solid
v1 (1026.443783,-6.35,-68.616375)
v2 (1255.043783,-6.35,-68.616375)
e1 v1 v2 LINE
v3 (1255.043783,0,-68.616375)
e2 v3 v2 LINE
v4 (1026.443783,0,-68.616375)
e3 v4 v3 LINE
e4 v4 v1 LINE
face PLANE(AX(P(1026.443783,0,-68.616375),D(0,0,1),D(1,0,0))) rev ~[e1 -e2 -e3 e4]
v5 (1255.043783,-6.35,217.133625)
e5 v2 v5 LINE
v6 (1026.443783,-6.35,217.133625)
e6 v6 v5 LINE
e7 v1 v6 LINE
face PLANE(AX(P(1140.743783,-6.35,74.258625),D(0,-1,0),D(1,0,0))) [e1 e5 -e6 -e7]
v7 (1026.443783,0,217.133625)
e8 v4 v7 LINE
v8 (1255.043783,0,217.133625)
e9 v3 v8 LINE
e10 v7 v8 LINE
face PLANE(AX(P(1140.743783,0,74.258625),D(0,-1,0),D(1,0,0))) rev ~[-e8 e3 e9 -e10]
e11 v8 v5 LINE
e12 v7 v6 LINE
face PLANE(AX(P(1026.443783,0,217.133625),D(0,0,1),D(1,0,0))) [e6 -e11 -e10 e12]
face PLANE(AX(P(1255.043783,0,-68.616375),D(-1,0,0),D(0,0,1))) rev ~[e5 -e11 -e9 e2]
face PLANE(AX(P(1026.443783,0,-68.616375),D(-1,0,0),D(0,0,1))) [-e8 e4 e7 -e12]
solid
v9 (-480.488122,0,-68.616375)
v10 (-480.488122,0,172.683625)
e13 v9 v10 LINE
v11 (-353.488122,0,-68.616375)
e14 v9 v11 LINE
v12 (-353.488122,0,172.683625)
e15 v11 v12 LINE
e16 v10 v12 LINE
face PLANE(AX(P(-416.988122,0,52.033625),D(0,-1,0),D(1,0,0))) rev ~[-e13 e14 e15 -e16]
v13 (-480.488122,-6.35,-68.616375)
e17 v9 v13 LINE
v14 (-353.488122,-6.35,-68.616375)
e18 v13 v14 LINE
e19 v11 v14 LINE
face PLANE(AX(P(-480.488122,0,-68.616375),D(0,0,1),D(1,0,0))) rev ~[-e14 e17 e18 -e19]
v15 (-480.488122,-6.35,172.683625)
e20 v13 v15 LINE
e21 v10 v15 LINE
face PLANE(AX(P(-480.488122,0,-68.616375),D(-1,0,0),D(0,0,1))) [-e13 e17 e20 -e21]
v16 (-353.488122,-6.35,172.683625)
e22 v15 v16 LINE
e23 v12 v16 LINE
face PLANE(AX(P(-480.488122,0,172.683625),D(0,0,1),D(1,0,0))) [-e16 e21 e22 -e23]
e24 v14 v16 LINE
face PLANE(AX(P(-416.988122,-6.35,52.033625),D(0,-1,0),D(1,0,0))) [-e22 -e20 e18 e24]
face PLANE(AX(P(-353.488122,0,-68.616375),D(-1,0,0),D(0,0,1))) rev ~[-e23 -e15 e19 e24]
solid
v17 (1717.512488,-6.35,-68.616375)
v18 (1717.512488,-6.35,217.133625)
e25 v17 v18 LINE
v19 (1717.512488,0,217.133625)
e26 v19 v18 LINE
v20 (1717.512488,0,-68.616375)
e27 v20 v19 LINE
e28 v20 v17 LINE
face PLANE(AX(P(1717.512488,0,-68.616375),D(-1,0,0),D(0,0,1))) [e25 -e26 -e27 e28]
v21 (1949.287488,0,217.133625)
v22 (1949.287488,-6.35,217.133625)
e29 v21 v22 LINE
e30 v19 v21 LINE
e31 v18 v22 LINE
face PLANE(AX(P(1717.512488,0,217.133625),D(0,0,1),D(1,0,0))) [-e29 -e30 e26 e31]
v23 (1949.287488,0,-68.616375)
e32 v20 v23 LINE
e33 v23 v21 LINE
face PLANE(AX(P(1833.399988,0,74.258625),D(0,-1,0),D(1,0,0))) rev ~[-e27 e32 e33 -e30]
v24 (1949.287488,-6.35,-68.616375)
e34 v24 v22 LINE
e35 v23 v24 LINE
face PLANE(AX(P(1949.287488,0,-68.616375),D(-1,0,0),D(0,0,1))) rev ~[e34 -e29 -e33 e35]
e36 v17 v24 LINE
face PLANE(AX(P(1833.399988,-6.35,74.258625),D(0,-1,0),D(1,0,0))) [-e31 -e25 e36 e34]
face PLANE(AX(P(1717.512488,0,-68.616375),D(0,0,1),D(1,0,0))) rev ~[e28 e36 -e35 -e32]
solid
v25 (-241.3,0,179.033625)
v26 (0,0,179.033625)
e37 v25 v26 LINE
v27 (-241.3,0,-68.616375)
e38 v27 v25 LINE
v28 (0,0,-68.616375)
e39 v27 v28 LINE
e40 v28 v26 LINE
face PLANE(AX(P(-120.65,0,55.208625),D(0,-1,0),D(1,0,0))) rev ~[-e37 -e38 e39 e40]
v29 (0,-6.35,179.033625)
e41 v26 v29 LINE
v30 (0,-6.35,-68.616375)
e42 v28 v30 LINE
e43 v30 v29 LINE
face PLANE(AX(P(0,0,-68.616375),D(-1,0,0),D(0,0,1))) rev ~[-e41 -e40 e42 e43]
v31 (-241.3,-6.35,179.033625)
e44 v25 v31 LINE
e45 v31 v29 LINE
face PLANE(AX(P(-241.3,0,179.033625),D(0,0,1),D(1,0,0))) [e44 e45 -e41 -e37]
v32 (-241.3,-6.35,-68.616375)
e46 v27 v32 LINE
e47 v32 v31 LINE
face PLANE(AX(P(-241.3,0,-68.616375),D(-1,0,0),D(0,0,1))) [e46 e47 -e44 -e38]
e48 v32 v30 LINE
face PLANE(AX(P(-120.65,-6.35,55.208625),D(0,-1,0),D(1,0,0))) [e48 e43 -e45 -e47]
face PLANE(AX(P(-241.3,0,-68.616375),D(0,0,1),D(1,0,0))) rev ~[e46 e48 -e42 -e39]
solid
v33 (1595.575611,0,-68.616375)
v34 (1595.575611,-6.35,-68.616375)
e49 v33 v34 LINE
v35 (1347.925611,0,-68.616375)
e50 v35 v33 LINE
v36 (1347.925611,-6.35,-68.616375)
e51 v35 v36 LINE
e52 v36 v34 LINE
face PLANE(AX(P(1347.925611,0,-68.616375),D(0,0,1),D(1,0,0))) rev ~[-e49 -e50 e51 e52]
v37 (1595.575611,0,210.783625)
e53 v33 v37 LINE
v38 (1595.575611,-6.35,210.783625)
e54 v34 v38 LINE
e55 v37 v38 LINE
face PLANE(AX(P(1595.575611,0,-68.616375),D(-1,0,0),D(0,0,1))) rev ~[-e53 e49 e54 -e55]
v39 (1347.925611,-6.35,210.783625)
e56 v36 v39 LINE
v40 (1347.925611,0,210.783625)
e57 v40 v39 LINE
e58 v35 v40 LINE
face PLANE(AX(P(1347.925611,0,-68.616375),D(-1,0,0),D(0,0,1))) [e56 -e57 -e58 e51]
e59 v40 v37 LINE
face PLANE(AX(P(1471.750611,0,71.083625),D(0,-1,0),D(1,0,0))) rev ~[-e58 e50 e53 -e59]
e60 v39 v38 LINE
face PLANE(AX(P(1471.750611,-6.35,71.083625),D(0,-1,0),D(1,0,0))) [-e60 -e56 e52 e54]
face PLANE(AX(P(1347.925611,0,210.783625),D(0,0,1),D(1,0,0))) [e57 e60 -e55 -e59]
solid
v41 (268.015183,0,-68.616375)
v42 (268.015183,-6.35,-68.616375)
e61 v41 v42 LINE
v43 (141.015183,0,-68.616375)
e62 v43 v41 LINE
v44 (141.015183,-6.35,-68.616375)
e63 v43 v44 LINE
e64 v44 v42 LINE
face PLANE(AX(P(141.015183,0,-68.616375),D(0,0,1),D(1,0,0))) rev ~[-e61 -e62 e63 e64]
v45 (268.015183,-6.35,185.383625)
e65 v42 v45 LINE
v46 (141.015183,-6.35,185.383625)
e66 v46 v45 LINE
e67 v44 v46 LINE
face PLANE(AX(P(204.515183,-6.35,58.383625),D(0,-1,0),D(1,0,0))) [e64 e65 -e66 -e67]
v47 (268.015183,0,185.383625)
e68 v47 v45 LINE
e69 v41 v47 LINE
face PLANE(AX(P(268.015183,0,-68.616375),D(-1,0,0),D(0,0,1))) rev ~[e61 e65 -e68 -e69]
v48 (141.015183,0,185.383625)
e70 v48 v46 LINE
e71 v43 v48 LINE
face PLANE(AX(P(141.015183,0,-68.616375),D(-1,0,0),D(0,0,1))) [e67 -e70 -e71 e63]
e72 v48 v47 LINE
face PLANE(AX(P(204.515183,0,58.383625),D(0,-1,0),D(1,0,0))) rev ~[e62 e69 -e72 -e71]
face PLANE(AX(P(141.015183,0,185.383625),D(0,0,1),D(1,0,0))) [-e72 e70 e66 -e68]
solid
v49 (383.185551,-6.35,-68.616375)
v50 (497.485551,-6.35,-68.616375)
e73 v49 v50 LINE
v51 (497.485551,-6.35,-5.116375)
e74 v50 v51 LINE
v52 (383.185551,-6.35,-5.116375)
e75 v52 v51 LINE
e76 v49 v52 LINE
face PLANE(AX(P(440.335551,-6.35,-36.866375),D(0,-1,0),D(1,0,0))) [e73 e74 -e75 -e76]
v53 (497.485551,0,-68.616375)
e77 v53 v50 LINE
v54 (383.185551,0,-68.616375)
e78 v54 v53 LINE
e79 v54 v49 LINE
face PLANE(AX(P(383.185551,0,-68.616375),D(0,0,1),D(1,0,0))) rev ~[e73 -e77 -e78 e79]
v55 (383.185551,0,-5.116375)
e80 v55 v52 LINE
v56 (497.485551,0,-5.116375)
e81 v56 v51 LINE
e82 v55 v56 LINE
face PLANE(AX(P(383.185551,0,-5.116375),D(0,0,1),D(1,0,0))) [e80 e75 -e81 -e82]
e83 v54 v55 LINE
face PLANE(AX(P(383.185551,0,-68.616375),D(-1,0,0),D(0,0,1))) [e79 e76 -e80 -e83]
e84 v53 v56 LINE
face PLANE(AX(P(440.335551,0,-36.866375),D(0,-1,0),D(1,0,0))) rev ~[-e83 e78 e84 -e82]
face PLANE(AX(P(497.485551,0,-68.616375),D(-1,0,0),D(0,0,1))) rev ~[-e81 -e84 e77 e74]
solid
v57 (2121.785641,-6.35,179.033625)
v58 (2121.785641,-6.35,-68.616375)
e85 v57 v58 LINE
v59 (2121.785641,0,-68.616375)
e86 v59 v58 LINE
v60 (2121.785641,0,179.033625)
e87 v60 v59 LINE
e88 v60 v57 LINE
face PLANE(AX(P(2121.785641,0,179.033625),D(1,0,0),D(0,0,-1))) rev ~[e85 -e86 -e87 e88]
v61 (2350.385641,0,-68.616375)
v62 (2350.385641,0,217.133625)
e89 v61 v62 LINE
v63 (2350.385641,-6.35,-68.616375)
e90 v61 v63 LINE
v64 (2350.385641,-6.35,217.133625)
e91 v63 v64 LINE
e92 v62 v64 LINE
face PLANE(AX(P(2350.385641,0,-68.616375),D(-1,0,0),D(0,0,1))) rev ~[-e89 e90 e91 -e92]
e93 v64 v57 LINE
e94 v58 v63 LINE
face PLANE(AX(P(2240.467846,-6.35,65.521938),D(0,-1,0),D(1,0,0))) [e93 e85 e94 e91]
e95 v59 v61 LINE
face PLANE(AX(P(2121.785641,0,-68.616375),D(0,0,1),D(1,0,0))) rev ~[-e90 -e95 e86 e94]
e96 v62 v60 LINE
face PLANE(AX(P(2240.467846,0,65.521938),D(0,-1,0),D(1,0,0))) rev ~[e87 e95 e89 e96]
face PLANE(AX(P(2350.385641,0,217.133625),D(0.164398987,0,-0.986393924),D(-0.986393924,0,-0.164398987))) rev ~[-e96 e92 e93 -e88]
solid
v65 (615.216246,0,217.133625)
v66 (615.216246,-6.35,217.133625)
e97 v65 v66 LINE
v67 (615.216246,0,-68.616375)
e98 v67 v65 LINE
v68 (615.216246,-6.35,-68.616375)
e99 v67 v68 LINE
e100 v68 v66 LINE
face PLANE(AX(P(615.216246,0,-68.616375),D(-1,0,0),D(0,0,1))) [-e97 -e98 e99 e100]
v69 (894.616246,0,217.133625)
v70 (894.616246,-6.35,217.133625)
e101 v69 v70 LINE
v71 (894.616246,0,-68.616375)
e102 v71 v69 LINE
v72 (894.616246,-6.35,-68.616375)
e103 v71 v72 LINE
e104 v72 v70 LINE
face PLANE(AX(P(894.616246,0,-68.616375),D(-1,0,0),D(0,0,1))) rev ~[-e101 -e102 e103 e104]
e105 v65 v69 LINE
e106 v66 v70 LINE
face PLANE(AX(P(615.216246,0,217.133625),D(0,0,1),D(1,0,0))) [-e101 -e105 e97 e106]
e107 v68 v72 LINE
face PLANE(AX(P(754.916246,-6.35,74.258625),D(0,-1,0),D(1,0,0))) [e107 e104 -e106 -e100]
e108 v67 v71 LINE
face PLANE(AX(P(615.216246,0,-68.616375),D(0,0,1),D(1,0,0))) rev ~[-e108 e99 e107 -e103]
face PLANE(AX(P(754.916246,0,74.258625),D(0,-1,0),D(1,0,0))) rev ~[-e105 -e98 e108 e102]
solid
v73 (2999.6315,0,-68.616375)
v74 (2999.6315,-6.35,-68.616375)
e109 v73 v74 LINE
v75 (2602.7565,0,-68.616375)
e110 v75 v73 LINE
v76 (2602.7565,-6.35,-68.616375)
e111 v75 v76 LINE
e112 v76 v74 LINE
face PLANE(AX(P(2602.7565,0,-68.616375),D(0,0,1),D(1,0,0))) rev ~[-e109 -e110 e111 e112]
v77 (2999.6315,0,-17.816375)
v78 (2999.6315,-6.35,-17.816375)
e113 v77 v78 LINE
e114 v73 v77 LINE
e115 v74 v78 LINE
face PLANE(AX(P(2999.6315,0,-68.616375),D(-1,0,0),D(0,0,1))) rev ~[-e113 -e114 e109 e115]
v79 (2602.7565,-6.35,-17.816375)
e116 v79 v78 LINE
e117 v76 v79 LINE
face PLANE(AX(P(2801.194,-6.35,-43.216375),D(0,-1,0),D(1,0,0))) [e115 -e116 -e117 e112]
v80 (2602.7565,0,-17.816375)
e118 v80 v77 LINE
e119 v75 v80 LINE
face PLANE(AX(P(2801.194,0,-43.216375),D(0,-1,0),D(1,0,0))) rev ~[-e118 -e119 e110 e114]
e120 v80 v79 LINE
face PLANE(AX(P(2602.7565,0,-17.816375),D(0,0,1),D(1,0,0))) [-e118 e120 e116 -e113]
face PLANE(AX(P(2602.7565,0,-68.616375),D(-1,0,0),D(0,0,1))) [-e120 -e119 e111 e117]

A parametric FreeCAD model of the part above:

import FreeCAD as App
import Part
import Sketcher
Q = App.Units.Quantity


def add_polygon(sketch, points):
    """Adds a closed chain of lines whose ends are joined by coincident constraints."""
    first, n = sketch.GeometryCount, len(points)
    for a, b in zip(points, points[1:] + points[:1]):
        sketch.addGeometry(Part.LineSegment(App.Vector(*a, 0), App.Vector(*b, 0)), False)
    for i in range(n):
        sketch.addConstraint(Sketcher.Constraint("Coincident", first + i, 2, first + (i + 1) % n, 1))

doc = App.newDocument("Part")
body = doc.addObject("PartDesign::Body", "Body")
body.AllowCompound = True

sketch1 = body.newObject("Sketcher::SketchObject", "Sketch")
sketch1.AttachmentSupport = (doc.getObject("XZ_Plane"), [""])
sketch1.MapMode = "FlatFace"
add_polygon(sketch1, [(-480, 173), (-480, -69), (-353, -69), (-353, 173)])
add_polygon(sketch1, [(-241, 179), (-241, -69), (0, -69), (0, 179)])
add_polygon(sketch1, [(141, 185), (141, -69), (268, -69), (268, 185)])
add_polygon(sketch1, [(383, -5), (383, -69), (497, -69), (497, -5)])
add_polygon(sketch1, [(615, 217), (615, -69), (895, -69), (895, 217)])
add_polygon(sketch1, [(1026, 217), (1026, -69), (1255, -69), (1255, 217)])
add_polygon(sketch1, [(1348, 211), (1348, -69), (1596, -69), (1596, 211)])
add_polygon(sketch1, [(1718, 217), (1718, -69), (1949, -69), (1949, 217)])
add_polygon(sketch1, [(2122, 179), (2122, -69), (2350, -69), (2350, 217)])
add_polygon(sketch1, [(2603, -18), (2603, -69), (3000, -69), (3000, -18)])
sketch1.addConstraint(Sketcher.Constraint("Vertical", 0))
sketch1.addConstraint(Sketcher.Constraint("Horizontal", 1))
sketch1.addConstraint(Sketcher.Constraint("Vertical", 2))
sketch1.addConstraint(Sketcher.Constraint("Horizontal", 3))
sketch1.addConstraint(Sketcher.Constraint("Vertical", 4))
sketch1.addConstraint(Sketcher.Constraint("Horizontal", 5))
sketch1.addConstraint(Sketcher.Constraint("Vertical", 6))
sketch1.addConstraint(Sketcher.Constraint("Horizontal", 7))
sketch1.addConstraint(Sketcher.Constraint("Vertical", 8))
sketch1.addConstraint(Sketcher.Constraint("Horizontal", 9))
sketch1.addConstraint(Sketcher.Constraint("Vertical", 10))
sketch1.addConstraint(Sketcher.Constraint("Horizontal", 11))
sketch1.addConstraint(Sketcher.Constraint("Vertical", 12))
sketch1.addConstraint(Sketcher.Constraint("Horizontal", 13))
sketch1.addConstraint(Sketcher.Constraint("Vertical", 14))
sketch1.addConstraint(Sketcher.Constraint("Horizontal", 15))
sketch1.addConstraint(Sketcher.Constraint("Vertical", 16))
sketch1.addConstraint(Sketcher.Constraint("Horizontal", 17))
sketch1.addConstraint(Sketcher.Constraint("Vertical", 18))
sketch1.addConstraint(Sketcher.Constraint("Horizontal", 19))
sketch1.addConstraint(Sketcher.Constraint("Vertical", 20))
sketch1.addConstraint(Sketcher.Constraint("Horizontal", 21))
sketch1.addConstraint(Sketcher.Constraint("Vertical", 22))
sketch1.addConstraint(Sketcher.Constraint("Horizontal", 23))
sketch1.addConstraint(Sketcher.Constraint("Vertical", 24))
sketch1.addConstraint(Sketcher.Constraint("Horizontal", 25))
sketch1.addConstraint(Sketcher.Constraint("Vertical", 26))
sketch1.addConstraint(Sketcher.Constraint("Horizontal", 27))
sketch1.addConstraint(Sketcher.Constraint("Vertical", 28))
sketch1.addConstraint(Sketcher.Constraint("Horizontal", 29))
sketch1.addConstraint(Sketcher.Constraint("Vertical", 30))
sketch1.addConstraint(Sketcher.Constraint("Horizontal", 31))
sketch1.addConstraint(Sketcher.Constraint("Vertical", 32))
sketch1.addConstraint(Sketcher.Constraint("Horizontal", 33))
sketch1.addConstraint(Sketcher.Constraint("Vertical", 34))
sketch1.addConstraint(Sketcher.Constraint("Vertical", 36))
sketch1.addConstraint(Sketcher.Constraint("Horizontal", 37))
sketch1.addConstraint(Sketcher.Constraint("Vertical", 38))
sketch1.addConstraint(Sketcher.Constraint("Horizontal", 39))
sketch1.addConstraint(Sketcher.Constraint("PointOnObject", 5, 2, -2))
sketch1.addConstraint(Sketcher.Constraint("Horizontal", 1, 2, 4, 2))
sketch1.addConstraint(Sketcher.Constraint("Horizontal", 5, 2, 8, 2))
sketch1.addConstraint(Sketcher.Constraint("Horizontal", 9, 2, 12, 2))
sketch1.addConstraint(Sketcher.Constraint("Horizontal", 13, 2, 16, 2))
sketch1.addConstraint(Sketcher.Constraint("Horizontal", 17, 2, 20, 2))
sketch1.addConstraint(Sketcher.Constraint("Horizontal", 19, 2, 22, 2))
sketch1.addConstraint(Sketcher.Constraint("Horizontal", 21, 2, 24, 2))
sketch1.addConstraint(Sketcher.Constraint("Horizontal", 25, 2, 28, 2))
sketch1.addConstraint(Sketcher.Constraint("Horizontal", 23, 2, 30, 2))
sketch1.addConstraint(Sketcher.Constraint("Horizontal", 29, 2, 32, 2))
sketch1.addConstraint(Sketcher.Constraint("Horizontal", 31, 2, 34, 2))
sketch1.addConstraint(Sketcher.Constraint("Horizontal", 7, 2, 35, 2))
sketch1.addConstraint(Sketcher.Constraint("Horizontal", 33, 2, 36, 2))
sketch1.addConstraint(Sketcher.Constraint("Equal", 3, 9))
sketch1.addConstraint(Sketcher.Constraint("Equal", 23, 33))
sketch1.addConstraint(Sketcher.Constraint("Equal", 7, 0))
sketch1.addConstraint(Sketcher.Constraint("Equal", 27, 4))
sketch1.addConstraint(Sketcher.Constraint("Equal", 19, 24))
sketch1.addConstraint(Sketcher.Constraint("DistanceX", 1, 1, 1, 2, Q("5 in")))
sketch1.addConstraint(Sketcher.Constraint("DistanceX", 17, 1, 17, 2, Q("11 in")))
sketch1.addConstraint(Sketcher.Constraint("DistanceX", 21, 1, 21, 2, Q("9 in")))
sketch1.addConstraint(Sketcher.Constraint("DistanceY", 8, 2, 8, 1, Q("10 in")))
sketch1.addConstraint(Sketcher.Constraint("DistanceY", 36, 2, 36, 1, Q("2 in")))
sketch1.addConstraint(Sketcher.Constraint("DistanceX", 5, 1, 5, 2, Q("9.5 in")))
sketch1.addConstraint(Sketcher.Constraint("DistanceX", 13, 1, 13, 2, Q("4.5 in")))
sketch1.addConstraint(Sketcher.Constraint("DistanceY", 12, 2, 12, 1, Q("2.5 in")))
sketch1.addConstraint(Sketcher.Constraint("DistanceX", 25, 1, 25, 2, Q("9.75 in")))
sketch1.addConstraint(Sketcher.Constraint("DistanceY", 16, 2, 16, 1, Q("11.25 in")))
sketch1.addConstraint(Sketcher.Constraint("DistanceX", 29, 1, 29, 2, Q("9.125 in")))
sketch1.addConstraint(Sketcher.Constraint("DistanceX", 37, 1, 37, 2, Q("15.625 in")))
sketch1.addConstraint(Sketcher.Constraint("DistanceX", -1, 1, 36, 2, 2602.7565))
sketch1.addConstraint(Sketcher.Constraint("DistanceX", 0, 2, -1, 1, 480.488122))
sketch1.addConstraint(Sketcher.Constraint("DistanceX", -1, 1, 12, 2, 383.185551))
sketch1.addConstraint(Sketcher.Constraint("DistanceX", -1, 1, 24, 2, 1347.925611))
sketch1.addConstraint(Sketcher.Constraint("DistanceX", -1, 1, 28, 2, 1717.512488))
sketch1.addConstraint(Sketcher.Constraint("DistanceX", -1, 1, 32, 2, 2121.785641))
sketch1.addConstraint(Sketcher.Constraint("DistanceX", 9, 2, 13, 2, 229.470368))
sketch1.addConstraint(Sketcher.Constraint("DistanceX", 13, 2, 20, 2, 528.958232))
sketch1.addConstraint(Sketcher.Constraint("DistanceY", 0, 2, -1, 1, 68.616375))
sketch1.addConstraint(Sketcher.Constraint("DistanceX", -1, 1, 16, 2, 615.216246))
pad1 = body.newObject("PartDesign::Pad", "Pad")
pad1.Profile = sketch1
pad1.Length = Q("0.25 in")

doc.recompute()
